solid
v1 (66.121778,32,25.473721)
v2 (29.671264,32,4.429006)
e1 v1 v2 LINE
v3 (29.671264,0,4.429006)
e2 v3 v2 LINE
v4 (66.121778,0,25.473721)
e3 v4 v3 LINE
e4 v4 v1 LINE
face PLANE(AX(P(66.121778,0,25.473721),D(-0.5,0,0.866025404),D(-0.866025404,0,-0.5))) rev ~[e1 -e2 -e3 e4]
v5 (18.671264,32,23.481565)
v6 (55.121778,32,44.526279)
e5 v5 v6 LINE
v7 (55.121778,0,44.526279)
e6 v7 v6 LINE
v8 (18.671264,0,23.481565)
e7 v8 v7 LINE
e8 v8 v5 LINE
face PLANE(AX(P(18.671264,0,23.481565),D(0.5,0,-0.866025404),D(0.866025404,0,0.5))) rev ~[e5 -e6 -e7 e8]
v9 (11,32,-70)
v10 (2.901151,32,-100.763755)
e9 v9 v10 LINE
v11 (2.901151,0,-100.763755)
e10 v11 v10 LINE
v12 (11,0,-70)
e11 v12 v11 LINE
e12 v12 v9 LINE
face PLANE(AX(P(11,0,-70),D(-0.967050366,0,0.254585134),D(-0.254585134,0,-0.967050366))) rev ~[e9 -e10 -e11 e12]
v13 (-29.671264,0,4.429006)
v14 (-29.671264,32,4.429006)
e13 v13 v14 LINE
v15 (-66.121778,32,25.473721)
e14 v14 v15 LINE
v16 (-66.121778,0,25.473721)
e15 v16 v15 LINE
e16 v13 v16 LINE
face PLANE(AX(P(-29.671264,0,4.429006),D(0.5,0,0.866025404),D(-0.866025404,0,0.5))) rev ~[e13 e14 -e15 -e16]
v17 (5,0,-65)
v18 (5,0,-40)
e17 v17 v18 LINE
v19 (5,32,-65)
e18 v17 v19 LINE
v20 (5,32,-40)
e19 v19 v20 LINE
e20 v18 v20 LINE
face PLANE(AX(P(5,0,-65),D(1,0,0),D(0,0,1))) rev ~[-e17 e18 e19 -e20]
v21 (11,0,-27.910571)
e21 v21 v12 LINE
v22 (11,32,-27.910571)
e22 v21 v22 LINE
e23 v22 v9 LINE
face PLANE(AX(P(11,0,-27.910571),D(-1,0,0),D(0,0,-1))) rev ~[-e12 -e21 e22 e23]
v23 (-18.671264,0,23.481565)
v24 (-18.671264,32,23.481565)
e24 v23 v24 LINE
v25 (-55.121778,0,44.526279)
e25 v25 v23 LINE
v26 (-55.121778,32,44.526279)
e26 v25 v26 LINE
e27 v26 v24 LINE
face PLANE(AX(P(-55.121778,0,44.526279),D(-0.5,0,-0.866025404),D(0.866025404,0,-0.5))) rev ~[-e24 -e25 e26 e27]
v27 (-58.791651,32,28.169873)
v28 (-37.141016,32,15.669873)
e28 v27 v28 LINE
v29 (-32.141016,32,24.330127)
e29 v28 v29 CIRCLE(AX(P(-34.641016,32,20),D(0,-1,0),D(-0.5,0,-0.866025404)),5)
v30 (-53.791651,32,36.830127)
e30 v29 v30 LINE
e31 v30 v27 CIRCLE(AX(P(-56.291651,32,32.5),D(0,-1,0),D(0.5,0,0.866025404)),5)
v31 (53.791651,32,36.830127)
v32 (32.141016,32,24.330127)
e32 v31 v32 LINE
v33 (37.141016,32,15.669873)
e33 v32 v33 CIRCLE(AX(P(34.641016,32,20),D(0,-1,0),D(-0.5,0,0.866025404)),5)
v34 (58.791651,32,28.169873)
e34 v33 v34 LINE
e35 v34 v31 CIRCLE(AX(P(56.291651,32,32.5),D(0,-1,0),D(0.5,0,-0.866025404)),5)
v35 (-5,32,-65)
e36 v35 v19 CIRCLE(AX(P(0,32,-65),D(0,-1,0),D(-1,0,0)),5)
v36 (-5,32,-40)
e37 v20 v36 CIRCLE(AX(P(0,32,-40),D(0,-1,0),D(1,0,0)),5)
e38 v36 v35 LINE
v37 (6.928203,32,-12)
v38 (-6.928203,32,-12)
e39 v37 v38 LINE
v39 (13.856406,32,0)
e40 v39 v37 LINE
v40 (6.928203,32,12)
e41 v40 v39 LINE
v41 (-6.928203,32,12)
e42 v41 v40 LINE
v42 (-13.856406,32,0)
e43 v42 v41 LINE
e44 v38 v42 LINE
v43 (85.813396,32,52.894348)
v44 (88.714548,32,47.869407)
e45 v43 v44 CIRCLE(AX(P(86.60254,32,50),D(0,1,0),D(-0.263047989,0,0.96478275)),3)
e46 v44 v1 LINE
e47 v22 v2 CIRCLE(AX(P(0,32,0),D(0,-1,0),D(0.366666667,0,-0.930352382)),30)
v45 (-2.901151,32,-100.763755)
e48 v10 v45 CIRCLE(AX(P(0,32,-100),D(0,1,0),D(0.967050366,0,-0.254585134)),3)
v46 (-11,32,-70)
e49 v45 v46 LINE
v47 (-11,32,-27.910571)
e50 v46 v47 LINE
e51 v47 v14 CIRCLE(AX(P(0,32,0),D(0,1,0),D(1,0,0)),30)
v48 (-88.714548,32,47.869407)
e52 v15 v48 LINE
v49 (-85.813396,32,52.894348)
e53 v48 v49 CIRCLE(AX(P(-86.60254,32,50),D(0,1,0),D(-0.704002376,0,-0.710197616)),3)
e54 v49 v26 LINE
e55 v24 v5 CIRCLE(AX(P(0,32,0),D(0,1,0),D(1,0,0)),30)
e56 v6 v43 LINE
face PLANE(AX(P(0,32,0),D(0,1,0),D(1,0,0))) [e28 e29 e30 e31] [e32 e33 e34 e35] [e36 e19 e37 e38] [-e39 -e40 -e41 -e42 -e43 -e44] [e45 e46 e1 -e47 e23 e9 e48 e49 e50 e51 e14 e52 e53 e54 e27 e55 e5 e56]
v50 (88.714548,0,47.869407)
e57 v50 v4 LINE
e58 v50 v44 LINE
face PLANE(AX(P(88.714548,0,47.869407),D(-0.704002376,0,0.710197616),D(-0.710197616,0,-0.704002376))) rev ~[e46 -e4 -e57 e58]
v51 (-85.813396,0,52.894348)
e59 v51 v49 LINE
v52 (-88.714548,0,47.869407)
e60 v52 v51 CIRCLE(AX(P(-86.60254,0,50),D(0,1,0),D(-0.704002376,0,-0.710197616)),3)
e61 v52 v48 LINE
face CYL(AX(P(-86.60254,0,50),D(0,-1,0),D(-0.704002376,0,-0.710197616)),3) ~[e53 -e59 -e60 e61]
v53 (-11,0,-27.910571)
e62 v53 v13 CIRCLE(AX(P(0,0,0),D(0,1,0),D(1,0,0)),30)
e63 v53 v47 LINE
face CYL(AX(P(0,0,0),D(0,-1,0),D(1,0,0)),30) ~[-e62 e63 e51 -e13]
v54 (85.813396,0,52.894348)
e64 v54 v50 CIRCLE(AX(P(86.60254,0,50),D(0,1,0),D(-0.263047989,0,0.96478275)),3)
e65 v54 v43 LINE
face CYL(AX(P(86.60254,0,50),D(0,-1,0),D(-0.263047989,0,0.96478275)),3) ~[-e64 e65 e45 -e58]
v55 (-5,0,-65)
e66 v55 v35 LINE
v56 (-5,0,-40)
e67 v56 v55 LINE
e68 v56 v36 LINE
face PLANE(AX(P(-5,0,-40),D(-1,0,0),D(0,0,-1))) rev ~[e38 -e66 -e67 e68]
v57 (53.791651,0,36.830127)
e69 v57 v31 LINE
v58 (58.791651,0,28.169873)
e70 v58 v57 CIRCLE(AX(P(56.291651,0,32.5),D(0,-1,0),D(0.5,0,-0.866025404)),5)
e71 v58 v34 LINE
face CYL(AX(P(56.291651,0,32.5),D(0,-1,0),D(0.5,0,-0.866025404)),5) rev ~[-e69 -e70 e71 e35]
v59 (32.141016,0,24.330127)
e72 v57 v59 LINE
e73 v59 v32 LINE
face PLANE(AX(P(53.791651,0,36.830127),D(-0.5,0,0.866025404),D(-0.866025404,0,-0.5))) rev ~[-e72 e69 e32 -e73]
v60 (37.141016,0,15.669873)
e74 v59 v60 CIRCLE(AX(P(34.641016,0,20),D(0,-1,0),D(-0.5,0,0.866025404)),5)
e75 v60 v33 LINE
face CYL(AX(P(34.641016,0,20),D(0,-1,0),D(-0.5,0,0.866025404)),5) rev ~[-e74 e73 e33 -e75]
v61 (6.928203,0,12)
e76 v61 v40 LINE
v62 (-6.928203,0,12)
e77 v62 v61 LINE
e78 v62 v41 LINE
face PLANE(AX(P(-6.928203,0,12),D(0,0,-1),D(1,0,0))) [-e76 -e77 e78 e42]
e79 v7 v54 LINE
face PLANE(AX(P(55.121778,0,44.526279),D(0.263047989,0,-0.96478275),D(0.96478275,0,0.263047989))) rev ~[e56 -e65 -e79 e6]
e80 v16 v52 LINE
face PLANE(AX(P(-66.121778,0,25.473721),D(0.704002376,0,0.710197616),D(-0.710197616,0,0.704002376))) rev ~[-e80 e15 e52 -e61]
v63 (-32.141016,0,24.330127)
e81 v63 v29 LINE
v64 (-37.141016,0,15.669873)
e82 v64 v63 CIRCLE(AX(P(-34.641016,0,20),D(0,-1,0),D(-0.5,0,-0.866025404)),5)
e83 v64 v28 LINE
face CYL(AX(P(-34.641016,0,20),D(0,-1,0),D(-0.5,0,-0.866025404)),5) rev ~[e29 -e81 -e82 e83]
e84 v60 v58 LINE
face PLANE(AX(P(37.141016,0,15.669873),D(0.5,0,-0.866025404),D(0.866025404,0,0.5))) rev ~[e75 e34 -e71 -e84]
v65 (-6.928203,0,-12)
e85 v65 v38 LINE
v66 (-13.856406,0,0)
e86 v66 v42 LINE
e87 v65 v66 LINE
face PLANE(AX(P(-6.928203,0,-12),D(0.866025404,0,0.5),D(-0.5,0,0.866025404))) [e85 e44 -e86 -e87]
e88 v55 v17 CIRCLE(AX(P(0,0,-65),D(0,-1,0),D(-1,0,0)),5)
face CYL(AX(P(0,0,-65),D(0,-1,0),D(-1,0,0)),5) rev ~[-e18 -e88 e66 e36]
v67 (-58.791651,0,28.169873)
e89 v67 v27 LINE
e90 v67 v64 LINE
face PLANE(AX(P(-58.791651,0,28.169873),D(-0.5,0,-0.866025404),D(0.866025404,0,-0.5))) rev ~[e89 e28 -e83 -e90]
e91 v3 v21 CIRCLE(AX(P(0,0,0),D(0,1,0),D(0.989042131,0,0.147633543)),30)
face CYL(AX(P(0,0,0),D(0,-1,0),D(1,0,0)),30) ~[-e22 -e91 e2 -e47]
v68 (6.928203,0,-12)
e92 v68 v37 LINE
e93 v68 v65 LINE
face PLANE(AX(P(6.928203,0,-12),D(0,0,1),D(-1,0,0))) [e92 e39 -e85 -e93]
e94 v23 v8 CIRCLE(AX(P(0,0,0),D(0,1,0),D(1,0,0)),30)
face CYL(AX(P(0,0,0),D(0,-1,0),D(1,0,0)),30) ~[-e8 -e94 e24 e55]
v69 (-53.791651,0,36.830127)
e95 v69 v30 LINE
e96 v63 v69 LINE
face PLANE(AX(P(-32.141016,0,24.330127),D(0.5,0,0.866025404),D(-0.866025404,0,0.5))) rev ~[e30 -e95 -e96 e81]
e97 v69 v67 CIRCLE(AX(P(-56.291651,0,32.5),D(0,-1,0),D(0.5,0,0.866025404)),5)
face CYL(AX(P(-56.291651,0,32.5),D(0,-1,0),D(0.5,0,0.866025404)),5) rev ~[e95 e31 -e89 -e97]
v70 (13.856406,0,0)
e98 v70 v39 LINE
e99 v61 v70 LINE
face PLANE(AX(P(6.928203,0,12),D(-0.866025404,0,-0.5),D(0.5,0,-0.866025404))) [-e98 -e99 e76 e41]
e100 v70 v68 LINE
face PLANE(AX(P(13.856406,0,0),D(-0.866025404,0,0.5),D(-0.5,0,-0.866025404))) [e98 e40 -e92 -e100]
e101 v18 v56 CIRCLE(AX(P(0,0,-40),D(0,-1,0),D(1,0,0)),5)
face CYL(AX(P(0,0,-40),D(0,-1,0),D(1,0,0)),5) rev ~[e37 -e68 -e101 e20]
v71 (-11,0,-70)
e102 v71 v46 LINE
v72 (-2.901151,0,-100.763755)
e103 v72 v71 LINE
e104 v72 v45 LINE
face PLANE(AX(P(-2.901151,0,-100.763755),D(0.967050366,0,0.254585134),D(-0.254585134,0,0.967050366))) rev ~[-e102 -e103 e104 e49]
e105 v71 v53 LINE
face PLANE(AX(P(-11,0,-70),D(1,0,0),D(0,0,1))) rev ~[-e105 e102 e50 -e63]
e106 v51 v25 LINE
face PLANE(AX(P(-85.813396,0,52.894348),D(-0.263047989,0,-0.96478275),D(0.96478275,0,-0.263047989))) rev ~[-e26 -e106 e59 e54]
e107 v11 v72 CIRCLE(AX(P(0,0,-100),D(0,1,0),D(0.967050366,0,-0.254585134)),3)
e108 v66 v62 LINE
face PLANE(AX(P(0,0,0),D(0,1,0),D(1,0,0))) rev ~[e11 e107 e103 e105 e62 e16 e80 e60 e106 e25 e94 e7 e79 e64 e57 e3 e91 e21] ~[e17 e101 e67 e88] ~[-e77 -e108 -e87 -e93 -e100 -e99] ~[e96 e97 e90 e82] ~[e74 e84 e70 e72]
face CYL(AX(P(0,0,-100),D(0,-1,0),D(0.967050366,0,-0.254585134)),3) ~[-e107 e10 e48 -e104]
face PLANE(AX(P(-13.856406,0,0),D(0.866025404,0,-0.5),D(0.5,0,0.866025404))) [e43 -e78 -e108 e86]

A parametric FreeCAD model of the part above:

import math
import FreeCAD as App
import Part
import Sketcher
Q = App.Units.Quantity

doc = App.newDocument("Part")
body = doc.addObject("PartDesign::Body", "Body")

sketch1 = body.newObject("Sketcher::SketchObject", "Sketch")
sketch1.AttachmentSupport = (doc.getObject("XZ_Plane"), [""])
sketch1.MapMode = "FlatFace"
sketch1.addGeometry(Part.LineSegment(App.Vector(11, -27.9, 0), App.Vector(11, -70, 0)), False)
sketch1.addGeometry(Part.LineSegment(App.Vector(11, -70, 0), App.Vector(2.9, -100.8, 0)), False)
sketch1.addGeometry(Part.ArcOfCircle(Part.Circle(App.Vector(0, -100, 0), App.Vector(0, 0, 1), 3), math.radians(-165), math.radians(-15)), False)
sketch1.addGeometry(Part.LineSegment(App.Vector(-2.9, -100.8, 0), App.Vector(-11, -70, 0)), False)
sketch1.addGeometry(Part.LineSegment(App.Vector(-11, -70, 0), App.Vector(-11, -27.9, 0)), False)
sketch1.addGeometry(Part.ArcOfCircle(Part.Circle(App.Vector(0, 0, 0), App.Vector(0, 0, 1), 30), math.radians(172), math.radians(248)), False)
sketch1.addGeometry(Part.LineSegment(App.Vector(-29.7, 4.4, 0), App.Vector(-66.1, 25.5, 0)), False)
sketch1.addGeometry(Part.LineSegment(App.Vector(-66.1, 25.5, 0), App.Vector(-88.7, 47.9, 0)), False)
sketch1.addGeometry(Part.ArcOfCircle(Part.Circle(App.Vector(-86.6, 50, 0), App.Vector(0, 0, 1), 3), math.radians(75), math.radians(225)), False)
sketch1.addGeometry(Part.LineSegment(App.Vector(-85.8, 52.9, 0), App.Vector(-55.1, 44.5, 0)), False)
sketch1.addGeometry(Part.LineSegment(App.Vector(-55.1, 44.5, 0), App.Vector(-18.7, 23.5, 0)), False)
sketch1.addGeometry(Part.ArcOfCircle(Part.Circle(App.Vector(0, 0, 0), App.Vector(0, 0, 1), 30), math.radians(52), math.radians(128)), False)
sketch1.addGeometry(Part.LineSegment(App.Vector(18.7, 23.5, 0), App.Vector(55.1, 44.5, 0)), False)
sketch1.addGeometry(Part.LineSegment(App.Vector(55.1, 44.5, 0), App.Vector(85.8, 52.9, 0)), False)
sketch1.addGeometry(Part.ArcOfCircle(Part.Circle(App.Vector(86.6, 50, 0), App.Vector(0, 0, 1), 3), math.radians(-45), math.radians(105)), False)
sketch1.addGeometry(Part.LineSegment(App.Vector(88.7, 47.9, 0), App.Vector(66.1, 25.5, 0)), False)
sketch1.addGeometry(Part.LineSegment(App.Vector(66.1, 25.5, 0), App.Vector(29.7, 4.4, 0)), False)
sketch1.addGeometry(Part.ArcOfCircle(Part.Circle(App.Vector(0, 0, 0), App.Vector(0, 0, 1), 30), math.radians(-68), math.radians(8)), False)
sketch1.addGeometry(Part.LineSegment(App.Vector(5, -65, 0), App.Vector(5, -40, 0)), False)
sketch1.addGeometry(Part.ArcOfCircle(Part.Circle(App.Vector(0, -40, 0), App.Vector(0, 0, 1), 5), math.radians(0), math.radians(180)), False)
sketch1.addGeometry(Part.LineSegment(App.Vector(-5, -40, 0), App.Vector(-5, -65, 0)), False)
sketch1.addGeometry(Part.ArcOfCircle(Part.Circle(App.Vector(0, -65, 0), App.Vector(0, 0, 1), 5), math.radians(180), math.radians(360)), False)
sketch1.addGeometry(Part.LineSegment(App.Vector(6.9, 12, 0), App.Vector(-6.9, 12, 0)), False)
sketch1.addGeometry(Part.LineSegment(App.Vector(-6.9, 12, 0), App.Vector(-13.9, 0, 0)), False)
sketch1.addGeometry(Part.LineSegment(App.Vector(-13.9, 0, 0), App.Vector(-6.9, -12, 0)), False)
sketch1.addGeometry(Part.LineSegment(App.Vector(-6.9, -12, 0), App.Vector(6.9, -12, 0)), False)
sketch1.addGeometry(Part.LineSegment(App.Vector(6.9, -12, 0), App.Vector(13.9, 0, 0)), False)
sketch1.addGeometry(Part.LineSegment(App.Vector(13.9, 0, 0), App.Vector(6.9, 12, 0)), False)
sketch1.addGeometry(Part.ArcOfCircle(Part.Circle(App.Vector(-34.6, 20, 0), App.Vector(0, 0, 1), 5), math.radians(-120), math.radians(60)), False)
sketch1.addGeometry(Part.LineSegment(App.Vector(-32.1, 24.3, 0), App.Vector(-53.8, 36.8, 0)), False)
sketch1.addGeometry(Part.ArcOfCircle(Part.Circle(App.Vector(-56.3, 32.5, 0), App.Vector(0, 0, 1), 5), math.radians(60), math.radians(240)), False)
sketch1.addGeometry(Part.LineSegment(App.Vector(-58.8, 28.2, 0), App.Vector(-37.1, 15.7, 0)), False)
sketch1.addGeometry(Part.ArcOfCircle(Part.Circle(App.Vector(34.6, 20, 0), App.Vector(0, 0, 1), 5), math.radians(120), math.radians(300)), False)
sketch1.addGeometry(Part.LineSegment(App.Vector(37.1, 15.7, 0), App.Vector(58.8, 28.2, 0)), False)
sketch1.addGeometry(Part.ArcOfCircle(Part.Circle(App.Vector(56.3, 32.5, 0), App.Vector(0, 0, 1), 5), math.radians(-60), math.radians(120)), False)
sketch1.addGeometry(Part.LineSegment(App.Vector(53.8, 36.8, 0), App.Vector(32.1, 24.3, 0)), False)
sketch1.addConstraint(Sketcher.Constraint("Coincident", 0, 2, 1, 1))
sketch1.addConstraint(Sketcher.Constraint("Tangent", 1, 2, 2, 2))
sketch1.addConstraint(Sketcher.Constraint("Tangent", 2, 1, 3, 1))
sketch1.addConstraint(Sketcher.Constraint("Coincident", 3, 2, 4, 1))
sketch1.addConstraint(Sketcher.Constraint("Coincident", 4, 2, 5, 2))
sketch1.addConstraint(Sketcher.Constraint("Coincident", 5, 1, 6, 1))
sketch1.addConstraint(Sketcher.Constraint("Coincident", 6, 2, 7, 1))
sketch1.addConstraint(Sketcher.Constraint("Tangent", 7, 2, 8, 2))
sketch1.addConstraint(Sketcher.Constraint("Tangent", 8, 1, 9, 1))
sketch1.addConstraint(Sketcher.Constraint("Coincident", 9, 2, 10, 1))
sketch1.addConstraint(Sketcher.Constraint("Coincident", 10, 2, 11, 2))
sketch1.addConstraint(Sketcher.Constraint("Coincident", 11, 1, 12, 1))
sketch1.addConstraint(Sketcher.Constraint("Coincident", 12, 2, 13, 1))
sketch1.addConstraint(Sketcher.Constraint("Tangent", 13, 2, 14, 2))
sketch1.addConstraint(Sketcher.Constraint("Tangent", 14, 1, 15, 1))
sketch1.addConstraint(Sketcher.Constraint("Coincident", 15, 2, 16, 1))
sketch1.addConstraint(Sketcher.Constraint("Coincident", 16, 2, 17, 2))
sketch1.addConstraint(Sketcher.Constraint("Coincident", 17, 1, 0, 1))
sketch1.addConstraint(Sketcher.Constraint("Tangent", 18, 2, 19, 1))
sketch1.addConstraint(Sketcher.Constraint("Tangent", 19, 2, 20, 1))
sketch1.addConstraint(Sketcher.Constraint("Tangent", 20, 2, 21, 1))
sketch1.addConstraint(Sketcher.Constraint("Tangent", 21, 2, 18, 1))
sketch1.addConstraint(Sketcher.Constraint("Coincident", 22, 2, 23, 1))
sketch1.addConstraint(Sketcher.Constraint("Coincident", 23, 2, 24, 1))
sketch1.addConstraint(Sketcher.Constraint("Coincident", 24, 2, 25, 1))
sketch1.addConstraint(Sketcher.Constraint("Coincident", 25, 2, 26, 1))
sketch1.addConstraint(Sketcher.Constraint("Coincident", 26, 2, 27, 1))
sketch1.addConstraint(Sketcher.Constraint("Coincident", 27, 2, 22, 1))
sketch1.addConstraint(Sketcher.Constraint("Tangent", 28, 2, 29, 1))
sketch1.addConstraint(Sketcher.Constraint("Tangent", 29, 2, 30, 1))
sketch1.addConstraint(Sketcher.Constraint("Tangent", 30, 2, 31, 1))
sketch1.addConstraint(Sketcher.Constraint("Tangent", 31, 2, 28, 1))
sketch1.addConstraint(Sketcher.Constraint("Tangent", 32, 2, 33, 1))
sketch1.addConstraint(Sketcher.Constraint("Tangent", 33, 2, 34, 1))
sketch1.addConstraint(Sketcher.Constraint("Tangent", 34, 2, 35, 1))
sketch1.addConstraint(Sketcher.Constraint("Tangent", 35, 2, 32, 1))
sketch1.addConstraint(Sketcher.Constraint("Vertical", 0))
sketch1.addConstraint(Sketcher.Constraint("Vertical", 4))
sketch1.addConstraint(Sketcher.Constraint("Vertical", 18))
sketch1.addConstraint(Sketcher.Constraint("Vertical", 20))
sketch1.addConstraint(Sketcher.Constraint("Horizontal", 22))
sketch1.addConstraint(Sketcher.Constraint("Horizontal", 25))
sketch1.addConstraint(Sketcher.Constraint("Coincident", 5, 3, -1, 1))
sketch1.addConstraint(Sketcher.Constraint("Coincident", 11, 3, -1, 1))
sketch1.addConstraint(Sketcher.Constraint("Coincident", 17, 3, -1, 1))
sketch1.addConstraint(Sketcher.Constraint("Equal", 2, 8))
sketch1.addConstraint(Sketcher.Constraint("Equal", 5, 11))
sketch1.addConstraint(Sketcher.Constraint("Equal", 8, 14))
sketch1.addConstraint(Sketcher.Constraint("Equal", 11, 17))
sketch1.addConstraint(Sketcher.Constraint("Equal", 21, 28))
sketch1.addConstraint(Sketcher.Constraint("Equal", 28, 30))
sketch1.addConstraint(Sketcher.Constraint("Equal", 30, 32))
sketch1.addConstraint(Sketcher.Constraint("Equal", 32, 34))
sketch1.addConstraint(Sketcher.Constraint("Symmetric", 22, 2, 25, 2, -1, 1))
sketch1.addConstraint(Sketcher.Constraint("Symmetric", 23, 2, 26, 2, -1, 1))
sketch1.addConstraint(Sketcher.Constraint("Symmetric", 8, 3, 14, 3, -2))
sketch1.addConstraint(Sketcher.Constraint("Symmetric", 28, 3, 32, 3, -2))
sketch1.addConstraint(Sketcher.Constraint("Symmetric", 30, 3, 34, 3, -2))
sketch1.addConstraint(Sketcher.Constraint("Symmetric", 1, 2, 2, 1, -2))
sketch1.addConstraint(Sketcher.Constraint("Symmetric", 9, 2, 12, 2, -2))
sketch1.addConstraint(Sketcher.Constraint("Symmetric", 6, 2, 15, 2, -2))
sketch1.addConstraint(Sketcher.Constraint("PointOnObject", 19, 3, -2))
sketch1.addConstraint(Sketcher.Constraint("PointOnObject", 23, 2, -1))
sketch1.addConstraint(Sketcher.Constraint("Parallel", 6, 10))
sketch1.addConstraint(Sketcher.Constraint("Parallel", 12, 16))
sketch1.addConstraint(Sketcher.Constraint("Perpendicular", 10, 23))
sketch1.addConstraint(Sketcher.Constraint("Perpendicular", 16, 24))
sketch1.addConstraint(Sketcher.Constraint("Parallel", 24, 27))
sketch1.addConstraint(Sketcher.Constraint("Perpendicular", 26, 29))
sketch1.addConstraint(Sketcher.Constraint("Perpendicular", 27, 33))
sketch1.addConstraint(Sketcher.Constraint("Horizontal", 0, 2, 3, 2))
sketch1.addConstraint(Sketcher.Constraint("Equal", 3, 7))
sketch1.addConstraint(Sketcher.Constraint("Equal", 7, 9))
sketch1.addConstraint(Sketcher.Constraint("Equal", 6, 10))
sketch1.addConstraint(Sketcher.Constraint("Radius", 2, Q("3 mm")))
sketch1.addConstraint(Sketcher.Constraint("Radius", 5, Q("30 mm")))
sketch1.addConstraint(Sketcher.Constraint("Radius", 19, Q("5 mm")))
sketch1.addConstraint(Sketcher.Constraint("DistanceY", 18, 1, 18, 2, Q("25 mm")))
sketch1.addConstraint(Sketcher.Constraint("Angle", 6, Q("150 deg")))
sketch1.addConstraint(Sketcher.Constraint("Distance", 29, Q("25 mm")))
sketch1.addConstraint(Sketcher.Constraint("DistanceY", 2, 3, -1, 1, Q("100 mm")))
sketch1.addConstraint(Sketcher.Constraint("DistanceY", -1, 1, 8, 3, Q("50 mm")))
sketch1.addConstraint(Sketcher.Constraint("DistanceY", 19, 3, -1, 1, Q("40 mm")))
sketch1.addConstraint(Sketcher.Constraint("DistanceY", -1, 1, 28, 3, Q("20 mm")))
sketch1.addConstraint(Sketcher.Constraint("DistanceX", -1, 1, 0, 2, Q("11 mm")))
sketch1.addConstraint(Sketcher.Constraint("DistanceY", 0, 2, -1, 1, Q("70 mm")))
sketch1.addConstraint(Sketcher.Constraint("DistanceY", -1, 1, 22, 2, Q("12 mm")))
sketch1.addConstraint(Sketcher.Constraint("DistanceX", 6, 2, 9, 2, Q("11 mm")))
sketch1.addConstraint(Sketcher.Constraint("DistanceY", 5, 1, 7, 2, Q("43.440401 mm")))
sketch1.addConstraint(Sketcher.Constraint("DistanceX", 22, 2, 22, 1, Q("13.856406 mm")))
sketch1.addConstraint(Sketcher.Constraint("DistanceX", 30, 3, -1, 1, Q("56.291651 mm")))
pad1 = body.newObject("PartDesign::Pad", "Pad")
pad1.Profile = sketch1
pad1.Length = 32
pad1.Reversed = True

doc.recompute()
